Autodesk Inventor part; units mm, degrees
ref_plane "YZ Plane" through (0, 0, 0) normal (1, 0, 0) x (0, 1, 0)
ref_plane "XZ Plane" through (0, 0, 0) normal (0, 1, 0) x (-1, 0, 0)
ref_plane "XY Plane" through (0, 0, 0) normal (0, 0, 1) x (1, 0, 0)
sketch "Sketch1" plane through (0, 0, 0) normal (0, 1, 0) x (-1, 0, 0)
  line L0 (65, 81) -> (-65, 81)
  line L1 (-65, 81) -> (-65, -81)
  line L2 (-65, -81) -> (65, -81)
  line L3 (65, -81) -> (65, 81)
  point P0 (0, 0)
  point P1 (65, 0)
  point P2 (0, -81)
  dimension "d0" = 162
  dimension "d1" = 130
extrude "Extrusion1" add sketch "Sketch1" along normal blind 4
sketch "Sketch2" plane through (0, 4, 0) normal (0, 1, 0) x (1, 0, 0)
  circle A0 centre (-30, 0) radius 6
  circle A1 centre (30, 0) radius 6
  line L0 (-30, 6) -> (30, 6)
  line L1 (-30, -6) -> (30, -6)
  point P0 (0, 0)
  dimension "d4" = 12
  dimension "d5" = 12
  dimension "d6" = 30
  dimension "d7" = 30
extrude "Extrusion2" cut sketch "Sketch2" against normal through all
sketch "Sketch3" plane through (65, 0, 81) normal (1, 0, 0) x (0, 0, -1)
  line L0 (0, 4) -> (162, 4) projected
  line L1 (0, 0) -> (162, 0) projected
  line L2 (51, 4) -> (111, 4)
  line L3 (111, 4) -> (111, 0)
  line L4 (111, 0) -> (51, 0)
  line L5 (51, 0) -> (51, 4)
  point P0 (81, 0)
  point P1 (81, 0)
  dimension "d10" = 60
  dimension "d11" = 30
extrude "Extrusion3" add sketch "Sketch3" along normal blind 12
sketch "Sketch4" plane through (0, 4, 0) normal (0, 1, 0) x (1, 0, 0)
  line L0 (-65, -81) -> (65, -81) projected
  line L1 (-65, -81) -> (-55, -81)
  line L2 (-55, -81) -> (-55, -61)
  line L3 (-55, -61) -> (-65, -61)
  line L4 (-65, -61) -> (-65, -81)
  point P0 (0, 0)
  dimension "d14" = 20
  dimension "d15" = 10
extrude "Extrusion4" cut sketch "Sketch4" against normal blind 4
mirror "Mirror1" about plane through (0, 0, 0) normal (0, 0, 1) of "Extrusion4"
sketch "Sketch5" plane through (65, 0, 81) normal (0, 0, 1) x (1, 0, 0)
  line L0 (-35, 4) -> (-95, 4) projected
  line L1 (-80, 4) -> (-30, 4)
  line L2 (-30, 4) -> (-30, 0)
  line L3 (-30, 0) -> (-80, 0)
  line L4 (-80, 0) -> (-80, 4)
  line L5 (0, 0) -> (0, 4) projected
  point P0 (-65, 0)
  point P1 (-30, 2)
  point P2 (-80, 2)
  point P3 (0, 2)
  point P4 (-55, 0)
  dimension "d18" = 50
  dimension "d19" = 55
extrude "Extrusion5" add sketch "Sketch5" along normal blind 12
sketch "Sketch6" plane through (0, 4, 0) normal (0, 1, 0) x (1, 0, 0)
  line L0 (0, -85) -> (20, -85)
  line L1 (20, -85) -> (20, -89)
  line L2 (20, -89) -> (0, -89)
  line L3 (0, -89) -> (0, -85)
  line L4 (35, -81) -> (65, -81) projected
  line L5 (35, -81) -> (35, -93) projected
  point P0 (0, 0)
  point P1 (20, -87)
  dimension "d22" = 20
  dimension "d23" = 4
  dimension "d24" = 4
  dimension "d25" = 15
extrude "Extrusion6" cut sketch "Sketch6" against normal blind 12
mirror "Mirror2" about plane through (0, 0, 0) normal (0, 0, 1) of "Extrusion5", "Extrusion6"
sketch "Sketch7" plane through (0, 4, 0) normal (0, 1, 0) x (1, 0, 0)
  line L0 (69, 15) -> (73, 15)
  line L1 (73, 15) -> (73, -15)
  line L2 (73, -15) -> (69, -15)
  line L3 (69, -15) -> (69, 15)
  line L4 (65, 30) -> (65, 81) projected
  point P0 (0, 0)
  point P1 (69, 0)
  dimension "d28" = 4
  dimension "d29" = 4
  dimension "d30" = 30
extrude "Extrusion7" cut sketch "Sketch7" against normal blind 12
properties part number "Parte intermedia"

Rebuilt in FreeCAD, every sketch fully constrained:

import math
import FreeCAD as App
import Part
import Sketcher

V = App.Vector


def add_polygon(sketch, points):
    """Adds a closed chain of lines whose ends are joined by coincident constraints."""
    first, n = sketch.GeometryCount, len(points)
    for a, b in zip(points, points[1:] + points[:1]):
        sketch.addGeometry(Part.LineSegment(App.Vector(*a, 0), App.Vector(*b, 0)), False)
    for i in range(n):
        sketch.addConstraint(Sketcher.Constraint("Coincident", first + i, 2, first + (i + 1) % n, 1))

doc = App.newDocument("Part")
body = doc.addObject("PartDesign::Body", "Body")

# Sketch on XZ plane
sketch1 = body.newObject("Sketcher::SketchObject", "Sketch")
sketch1.AttachmentSupport = (doc.getObject("XZ_Plane"), [""])
sketch1.MapMode = "FlatFace"
add_polygon(sketch1, [(-65, -81), (-65, 81), (65, 81), (65, -81)])  # lines 0-3
sketch1.addConstraint(Sketcher.Constraint("Vertical", 0))
sketch1.addConstraint(Sketcher.Constraint("Horizontal", 1))
sketch1.addConstraint(Sketcher.Constraint("Vertical", 2))
sketch1.addConstraint(Sketcher.Constraint("Horizontal", 3))
sketch1.addConstraint(Sketcher.Constraint("Symmetric", 0, 2, 2, 2, -1, 1))
sketch1.addConstraint(Sketcher.Constraint("DistanceX", 1, 1, 1, 2, 130.0))
sketch1.addConstraint(Sketcher.Constraint("DistanceY", 0, 1, 0, 2, 162.0))
pad1 = body.newObject("PartDesign::Pad", "Pad")
pad1.Profile = sketch1
pad1.Length = 4
pad1.Reversed = True

# Sketch on XZ plane
sketch2 = body.newObject("Sketcher::SketchObject", "Sketch001")
sketch2.AttachmentSupport = (doc.getObject("XZ_Plane"), [""])
sketch2.MapMode = "FlatFace"
sketch2.AttachmentOffset = App.Placement(V(0, 0, -4), App.Rotation())
sketch2.addGeometry(Part.ArcOfCircle(Part.Circle(V(-30, 0, 0), V(0, 0, 1), 6), math.radians(90), math.radians(270)), False)
sketch2.addGeometry(Part.LineSegment(V(-30, 6, 0), V(30, 6, 0)), False)
sketch2.addGeometry(Part.ArcOfCircle(Part.Circle(V(30, 0, 0), V(0, 0, 1), 6), math.radians(-90), math.radians(90)), False)
sketch2.addGeometry(Part.LineSegment(V(30, -6, 0), V(-30, -6, 0)), False)
sketch2.addConstraint(Sketcher.Constraint("Tangent", 0, 1, 1, 1))
sketch2.addConstraint(Sketcher.Constraint("Tangent", 1, 2, 2, 2))
sketch2.addConstraint(Sketcher.Constraint("Tangent", 2, 1, 3, 1))
sketch2.addConstraint(Sketcher.Constraint("Tangent", 3, 2, 0, 2))
sketch2.addConstraint(Sketcher.Constraint("Horizontal", 1))
sketch2.addConstraint(Sketcher.Constraint("Horizontal", 3))
sketch2.addConstraint(Sketcher.Constraint("Symmetric", 0, 3, 2, 3, -1, 1))
sketch2.addConstraint(Sketcher.Constraint("Radius", 0, 6.0))
sketch2.addConstraint(Sketcher.Constraint("DistanceX", 0, 3, -1, 1, 30.0))
pocket1 = body.newObject("PartDesign::Pocket", "Pocket")
pocket1.Profile = sketch2
pocket1.Type = "ThroughAll"
pocket1.Reversed = True

# Sketch on YZ plane
sketch3 = body.newObject("Sketcher::SketchObject", "Sketch002")
sketch3.AttachmentSupport = (doc.getObject("YZ_Plane"), [""])
sketch3.MapMode = "FlatFace"
sketch3.AttachmentOffset = App.Placement(V(0, 0, 65), App.Rotation())
add_polygon(sketch3, [(4, -30), (4, 30), (0, 30), (0, -30)])  # lines 0-3
sketch3.addConstraint(Sketcher.Constraint("Vertical", 0))
sketch3.addConstraint(Sketcher.Constraint("Horizontal", 1))
sketch3.addConstraint(Sketcher.Constraint("Vertical", 2))
sketch3.addConstraint(Sketcher.Constraint("Horizontal", 3))
sketch3.addConstraint(Sketcher.Constraint("Symmetric", 1, 2, 2, 2, -1, 1))
sketch3.addConstraint(Sketcher.Constraint("DistanceY", 0, 1, 0, 2, 60.0))
sketch3.addConstraint(Sketcher.Constraint("DistanceX", 1, 2, 1, 1, 4.0))
pad2 = body.newObject("PartDesign::Pad", "Pad001")
pad2.Profile = sketch3
pad2.Length = 12

# Sketch on XZ plane
sketch4 = body.newObject("Sketcher::SketchObject", "Sketch003")
sketch4.AttachmentSupport = (doc.getObject("XZ_Plane"), [""])
sketch4.MapMode = "FlatFace"
sketch4.AttachmentOffset = App.Placement(V(0, 0, -4), App.Rotation())
add_polygon(sketch4, [(-65, 61), (-65, 81), (-55, 81), (-55, 61)])  # lines 0-3
sketch4.addConstraint(Sketcher.Constraint("Vertical", 0))
sketch4.addConstraint(Sketcher.Constraint("Horizontal", 1))
sketch4.addConstraint(Sketcher.Constraint("Vertical", 2))
sketch4.addConstraint(Sketcher.Constraint("Horizontal", 3))
sketch4.addConstraint(Sketcher.Constraint("DistanceX", 1, 1, 1, 2, 10.0))
sketch4.addConstraint(Sketcher.Constraint("DistanceY", 0, 1, 0, 2, 20.0))
sketch4.addConstraint(Sketcher.Constraint("DistanceX", 0, 2, -1, 1, 65.0))
sketch4.addConstraint(Sketcher.Constraint("DistanceY", -1, 1, 0, 2, 81.0))
pocket2 = body.newObject("PartDesign::Pocket", "Pocket001")
pocket2.Profile = sketch4
pocket2.Length = 4
pocket2.Reversed = True
doc.recompute()

mirrored = body.newObject("PartDesign::Mirrored", "Mirrored")
mirrored.Originals = [pocket2]
mirrored.MirrorPlane = (doc.getObject("XY_Plane"), [""])
body.Tip = mirrored

# Sketch on XY plane
sketch5 = body.newObject("Sketcher::SketchObject", "Sketch004")
sketch5.AttachmentSupport = (doc.getObject("XY_Plane"), [""])
sketch5.MapMode = "FlatFace"
sketch5.AttachmentOffset = App.Placement(V(0, 0, 81), App.Rotation())
add_polygon(sketch5, [(35, 4), (-15, 4), (-15, 0), (35, 0)])  # lines 0-3
sketch5.addConstraint(Sketcher.Constraint("Horizontal", 0))
sketch5.addConstraint(Sketcher.Constraint("Vertical", 1))
sketch5.addConstraint(Sketcher.Constraint("Horizontal", 2))
sketch5.addConstraint(Sketcher.Constraint("Vertical", 3))
sketch5.addConstraint(Sketcher.Constraint("PointOnObject", 1, 2, -1))
sketch5.addConstraint(Sketcher.Constraint("DistanceX", 0, 2, 0, 1, 50.0))
sketch5.addConstraint(Sketcher.Constraint("DistanceY", 1, 2, 1, 1, 4.0))
sketch5.addConstraint(Sketcher.Constraint("DistanceX", 0, 2, -1, 1, 15.0))
pad3 = body.newObject("PartDesign::Pad", "Pad002")
pad3.Profile = sketch5
pad3.Length = 12

# Sketch on XZ plane
sketch6 = body.newObject("Sketcher::SketchObject", "Sketch005")
sketch6.AttachmentSupport = (doc.getObject("XZ_Plane"), [""])
sketch6.MapMode = "FlatFace"
sketch6.AttachmentOffset = App.Placement(V(0, 0, -4), App.Rotation())
add_polygon(sketch6, [(20, 85), (0, 85), (0, 89), (20, 89)])  # lines 0-3
sketch6.addConstraint(Sketcher.Constraint("Horizontal", 0))
sketch6.addConstraint(Sketcher.Constraint("Vertical", 1))
sketch6.addConstraint(Sketcher.Constraint("Horizontal", 2))
sketch6.addConstraint(Sketcher.Constraint("Vertical", 3))
sketch6.addConstraint(Sketcher.Constraint("PointOnObject", 0, 2, -2))
sketch6.addConstraint(Sketcher.Constraint("DistanceX", 0, 2, 0, 1, 20.0))
sketch6.addConstraint(Sketcher.Constraint("DistanceY", 1, 1, 1, 2, 4.0))
sketch6.addConstraint(Sketcher.Constraint("DistanceY", -1, 1, 0, 2, 85.0))
pocket3 = body.newObject("PartDesign::Pocket", "Pocket002")
pocket3.Profile = sketch6
pocket3.Length = 12
pocket3.Reversed = True
doc.recompute()

mirrored2 = body.newObject("PartDesign::Mirrored", "Mirrored001")
mirrored2.Originals = [pad3, pocket3]
mirrored2.MirrorPlane = (doc.getObject("XY_Plane"), [""])
body.Tip = mirrored2

# Sketch on XZ plane
sketch7 = body.newObject("Sketcher::SketchObject", "Sketch006")
sketch7.AttachmentSupport = (doc.getObject("XZ_Plane"), [""])
sketch7.MapMode = "FlatFace"
sketch7.AttachmentOffset = App.Placement(V(0, 0, -4), App.Rotation())
add_polygon(sketch7, [(73, -15), (69, -15), (69, 15), (73, 15)])  # lines 0-3
sketch7.addConstraint(Sketcher.Constraint("Horizontal", 0))
sketch7.addConstraint(Sketcher.Constraint("Vertical", 1))
sketch7.addConstraint(Sketcher.Constraint("Horizontal", 2))
sketch7.addConstraint(Sketcher.Constraint("Vertical", 3))
sketch7.addConstraint(Sketcher.Constraint("DistanceX", 0, 2, 0, 1, 4.0))
sketch7.addConstraint(Sketcher.Constraint("DistanceY", 1, 1, 1, 2, 30.0))
sketch7.addConstraint(Sketcher.Constraint("DistanceX", -1, 1, 0, 2, 69.0))
sketch7.addConstraint(Sketcher.Constraint("DistanceY", 0, 2, -1, 1, 15.0))
pocket4 = body.newObject("PartDesign::Pocket", "Pocket003")
pocket4.Profile = sketch7
pocket4.Length = 12
pocket4.Reversed = True

doc.recompute()
